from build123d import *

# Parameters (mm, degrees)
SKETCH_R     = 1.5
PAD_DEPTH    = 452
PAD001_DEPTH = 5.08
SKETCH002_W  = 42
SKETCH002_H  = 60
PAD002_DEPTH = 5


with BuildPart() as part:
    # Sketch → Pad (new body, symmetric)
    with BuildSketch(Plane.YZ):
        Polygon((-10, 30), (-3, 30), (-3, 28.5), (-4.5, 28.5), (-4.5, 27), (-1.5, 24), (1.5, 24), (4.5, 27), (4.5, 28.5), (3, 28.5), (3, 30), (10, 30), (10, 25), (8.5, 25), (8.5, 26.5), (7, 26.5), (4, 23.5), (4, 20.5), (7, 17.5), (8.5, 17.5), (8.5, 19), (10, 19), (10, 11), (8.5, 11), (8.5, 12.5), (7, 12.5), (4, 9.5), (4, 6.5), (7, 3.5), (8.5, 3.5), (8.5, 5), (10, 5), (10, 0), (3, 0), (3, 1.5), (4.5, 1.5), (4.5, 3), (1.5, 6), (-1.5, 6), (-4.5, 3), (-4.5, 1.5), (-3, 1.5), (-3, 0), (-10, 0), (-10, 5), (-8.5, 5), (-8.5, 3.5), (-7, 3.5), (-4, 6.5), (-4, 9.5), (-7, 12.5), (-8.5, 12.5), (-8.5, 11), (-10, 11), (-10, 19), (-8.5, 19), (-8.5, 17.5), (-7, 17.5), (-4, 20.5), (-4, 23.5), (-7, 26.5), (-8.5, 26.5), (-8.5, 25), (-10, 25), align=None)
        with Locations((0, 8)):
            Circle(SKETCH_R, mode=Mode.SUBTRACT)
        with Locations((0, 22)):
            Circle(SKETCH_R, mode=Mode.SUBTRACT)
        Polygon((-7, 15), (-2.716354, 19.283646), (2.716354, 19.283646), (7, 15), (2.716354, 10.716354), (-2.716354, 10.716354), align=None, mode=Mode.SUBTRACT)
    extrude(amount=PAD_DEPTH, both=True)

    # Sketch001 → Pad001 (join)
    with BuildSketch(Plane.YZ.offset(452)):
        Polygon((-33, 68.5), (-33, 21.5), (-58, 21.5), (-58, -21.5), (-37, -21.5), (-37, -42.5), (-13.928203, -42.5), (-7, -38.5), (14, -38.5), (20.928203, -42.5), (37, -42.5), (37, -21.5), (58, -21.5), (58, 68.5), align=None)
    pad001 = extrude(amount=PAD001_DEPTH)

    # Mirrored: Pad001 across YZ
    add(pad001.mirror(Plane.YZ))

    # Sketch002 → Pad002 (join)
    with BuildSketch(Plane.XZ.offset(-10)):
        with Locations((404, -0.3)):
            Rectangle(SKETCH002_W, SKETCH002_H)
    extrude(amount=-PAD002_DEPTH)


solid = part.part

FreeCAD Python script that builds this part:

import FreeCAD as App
import Part
import Sketcher
Q = App.Units.Quantity


def add_polygon(sketch, points):
    """Adds a closed chain of lines whose ends are joined by coincident constraints."""
    first, n = sketch.GeometryCount, len(points)
    for a, b in zip(points, points[1:] + points[:1]):
        sketch.addGeometry(Part.LineSegment(App.Vector(*a, 0), App.Vector(*b, 0)), False)
    for i in range(n):
        sketch.addConstraint(Sketcher.Constraint("Coincident", first + i, 2, first + (i + 1) % n, 1))

doc = App.newDocument("Part")
body = doc.addObject("PartDesign::Body", "Body")

# Sketch on YZ plane
sketch1 = body.newObject("Sketcher::SketchObject", "Sketch")
sketch1.AttachmentSupport = (doc.getObject("YZ_Plane"), [""])
sketch1.MapMode = "FlatFace"
add_polygon(sketch1, [(-3, 30), (-10, 30), (-10, 25), (-8.5, 25), (-8.5, 26.5), (-7, 26.5), (-4, 23.5), (-4, 20.5), (-7, 17.5), (-8.5, 17.5), (-8.5, 19), (-10, 19), (-10, 11), (-8.5, 11), (-8.5, 12.5), (-7, 12.5), (-4, 9.5), (-4, 6.5), (-7, 3.5), (-8.5, 3.5), (-8.5, 5), (-10, 5), (-10, 0), (-3, 0), (-3, 1.5), (-4.5, 1.5), (-4.5, 3), (-1.5, 6), (1.5, 6), (4.5, 3), (4.5, 1.5), (3, 1.5), (3, 0), (10, 0), (10, 5), (8.5, 5), (8.5, 3.5), (7, 3.5), (4, 6.5), (4, 9.5), (7, 12.5), (8.5, 12.5), (8.5, 11), (10, 11), (10, 19), (8.5, 19), (8.5, 17.5), (7, 17.5), (4, 20.5), (4, 23.5), (7, 26.5), (8.5, 26.5), (8.5, 25), (10, 25), (10, 30), (3, 30), (3, 28.5), (4.5, 28.5), (4.5, 27), (1.5, 24), (-1.5, 24), (-4.5, 27), (-4.5, 28.5), (-3, 28.5)])  # lines 0-63
sketch1.addGeometry(Part.Circle(App.Vector(0, 8, 0), App.Vector(0, 0, 1), 1.5), False)  # 64
add_polygon(sketch1, [(-7, 15), (-2.7, 19.3), (2.7, 19.3), (7, 15), (2.7, 10.7), (-2.7, 10.7)])  # lines 65-70
sketch1.addGeometry(Part.Circle(App.Vector(0, 22, 0), App.Vector(0, 0, 1), 1.5), False)  # 71
sketch1.addConstraint([
    Sketcher.Constraint("Horizontal", 0),
    Sketcher.Constraint("Vertical", 1),
    Sketcher.Constraint("Horizontal", 2),
    Sketcher.Constraint("Vertical", 3),
    Sketcher.Constraint("Horizontal", 4),
    Sketcher.Constraint("Vertical", 6),
    Sketcher.Constraint("Horizontal", 8),
    Sketcher.Constraint("Vertical", 9),
    Sketcher.Constraint("Horizontal", 10),
    Sketcher.Constraint("Vertical", 11),
    Sketcher.Constraint("Horizontal", 12),
    Sketcher.Constraint("Vertical", 13),
    Sketcher.Constraint("Horizontal", 14),
    Sketcher.Constraint("Vertical", 16),
    Sketcher.Constraint("Horizontal", 18),
    Sketcher.Constraint("Vertical", 19),
    Sketcher.Constraint("Horizontal", 20),
    Sketcher.Constraint("Vertical", 21),
    Sketcher.Constraint("Horizontal", 22),
    Sketcher.Constraint("Vertical", 23),
    Sketcher.Constraint("Horizontal", 24),
    Sketcher.Constraint("Vertical", 25),
    Sketcher.Constraint("Horizontal", 27),
    Sketcher.Constraint("Vertical", 29),
    Sketcher.Constraint("Horizontal", 30),
    Sketcher.Constraint("Vertical", 31),
    Sketcher.Constraint("Horizontal", 32),
    Sketcher.Constraint("Vertical", 33),
    Sketcher.Constraint("Horizontal", 34),
    Sketcher.Constraint("Vertical", 35),
    Sketcher.Constraint("Horizontal", 36),
    Sketcher.Constraint("Vertical", 38),
    Sketcher.Constraint("Horizontal", 40),
    Sketcher.Constraint("Vertical", 41),
    Sketcher.Constraint("Horizontal", 42),
    Sketcher.Constraint("Vertical", 43),
    Sketcher.Constraint("Horizontal", 44),
    Sketcher.Constraint("Vertical", 45),
    Sketcher.Constraint("Horizontal", 46),
    Sketcher.Constraint("Vertical", 48),
    Sketcher.Constraint("Horizontal", 50),
    Sketcher.Constraint("Vertical", 51),
    Sketcher.Constraint("Horizontal", 52),
    Sketcher.Constraint("Vertical", 53),
    Sketcher.Constraint("Horizontal", 54),
    Sketcher.Constraint("Vertical", 55),
    Sketcher.Constraint("Horizontal", 56),
    Sketcher.Constraint("Vertical", 57),
    Sketcher.Constraint("Horizontal", 59),
    Sketcher.Constraint("Vertical", 61),
    Sketcher.Constraint("Horizontal", 62),
    Sketcher.Constraint("Vertical", 63),
    Sketcher.Constraint("Horizontal", 66),
    Sketcher.Constraint("Horizontal", 69),
    Sketcher.Constraint("Equal", 64, 71),
    Sketcher.Constraint("Symmetric", 22, 2, 31, 2, -1, 1),
    Sketcher.Constraint("Symmetric", 25, 2, 28, 2, -2),
    Sketcher.Constraint("Symmetric", 21, 2, 32, 2, -2),
    Sketcher.Constraint("Symmetric", 19, 2, 34, 2, -2),
    Sketcher.Constraint("Symmetric", 17, 2, 36, 2, -2),
    Sketcher.Constraint("Symmetric", 16, 2, 37, 2, -2),
    Sketcher.Constraint("Symmetric", 14, 2, 39, 2, -2),
    Sketcher.Constraint("Symmetric", 12, 2, 41, 2, -2),
    Sketcher.Constraint("Symmetric", 10, 2, 43, 2, -2),
    Sketcher.Constraint("Symmetric", 8, 2, 45, 2, -2),
    Sketcher.Constraint("Symmetric", 6, 2, 47, 2, -2),
    Sketcher.Constraint("Symmetric", 4, 2, 49, 2, -2),
    Sketcher.Constraint("Symmetric", 2, 2, 51, 2, -2),
    Sketcher.Constraint("Symmetric", 0, 2, 53, 2, -2),
    Sketcher.Constraint("Symmetric", 57, 2, 60, 2, -2),
    Sketcher.Constraint("Symmetric", 55, 2, 62, 2, -2),
    Sketcher.Constraint("Symmetric", 67, 2, 70, 2, -2),
    Sketcher.Constraint("PointOnObject", 64, 3, -2),
    Sketcher.Constraint("PointOnObject", 71, 3, -2),
    Sketcher.Constraint("Perpendicular", 5, 7),
    Sketcher.Constraint("Perpendicular", 7, 15),
    Sketcher.Constraint("Perpendicular", 15, 17),
    Sketcher.Constraint("Parallel", 17, 26),
    Sketcher.Constraint("Perpendicular", 26, 28),
    Sketcher.Constraint("Parallel", 28, 37),
    Sketcher.Constraint("Perpendicular", 37, 39),
    Sketcher.Constraint("Perpendicular", 39, 47),
    Sketcher.Constraint("Perpendicular", 47, 49),
    Sketcher.Constraint("Parallel", 49, 58),
    Sketcher.Constraint("Perpendicular", 58, 60),
    Sketcher.Constraint("Perpendicular", 60, 65),
    Sketcher.Constraint("Perpendicular", 65, 67),
    Sketcher.Constraint("Perpendicular", 67, 68),
    Sketcher.Constraint("Perpendicular", 68, 70),
    Sketcher.Constraint("Horizontal", 24, 2, 29, 2),
    Sketcher.Constraint("Vertical", 4, 2, 7, 2),
    Sketcher.Constraint("Vertical", 3, 2, 8, 2),
    Sketcher.Constraint("Vertical", 1, 2, 10, 2),
    Sketcher.Constraint("Vertical", 9, 2, 12, 2),
    Sketcher.Constraint("Vertical", 7, 2, 14, 2),
    Sketcher.Constraint("Vertical", 6, 2, 15, 2),
    Sketcher.Constraint("Vertical", 14, 2, 17, 2),
    Sketcher.Constraint("Vertical", 13, 2, 18, 2),
    Sketcher.Constraint("Vertical", 11, 2, 20, 2),
    Sketcher.Constraint("Vertical", 31, 2, 54, 2),
    Sketcher.Constraint("Vertical", 29, 2, 56, 2),
    Sketcher.Constraint("Vertical", 27, 2, 58, 2),
    Sketcher.Constraint("Vertical", 49, 2, 67, 2),
    Sketcher.Constraint("Vertical", 66, 2, 68, 2),
    Sketcher.Constraint("Equal", 2, 4),
    Sketcher.Constraint("Equal", 20, 24),
    Sketcher.Constraint("Equal", 62, 3),
    Sketcher.Constraint("Equal", 59, 6),
    Sketcher.Constraint("Equal", 3, 9),
    Sketcher.Constraint("Equal", 9, 13),
    Sketcher.Constraint("Equal", 6, 16),
    Sketcher.Constraint("Equal", 13, 19),
    Sketcher.Constraint("Equal", 1, 21),
    Sketcher.Constraint("Equal", 19, 23),
    Sketcher.Constraint("Equal", 23, 25),
    Sketcher.Constraint("Equal", 51, 55),
    Sketcher.Constraint("Equal", 55, 57),
    Sketcher.Constraint("Equal", 17, 26),
    Sketcher.Constraint("Diameter", 64, 3.0),
    Sketcher.Constraint("DistanceX", 0, 2, 0, 1, 7.0),
    Sketcher.Constraint("DistanceX", 27, 1, 27, 2, 3.0),
    Sketcher.Constraint("DistanceY", 1, 2, 1, 1, 5.0),
    Sketcher.Constraint("DistanceY", 11, 2, 11, 1, 8.0),
    Sketcher.Constraint("DistanceX", 2, 1, 2, 2, 1.5),
    Sketcher.Constraint("DistanceY", -1, 1, 64, 3, 8.0),
    Sketcher.Constraint("DistanceY", -1, 1, 71, 3, 22.0),
    Sketcher.Constraint("DistanceX", 0, 2, -1, 1, 10.0),
    Sketcher.Constraint("DistanceY", -1, 1, 67, 2, 15.0),
    Sketcher.Constraint("Distance", 65, 6.05799),
])
pad1 = body.newObject("PartDesign::Pad", "Pad")
pad1.Profile = sketch1
pad1.Length = 904
pad1.Midplane = True

# Sketch on YZ plane
sketch2 = body.newObject("Sketcher::SketchObject", "Sketch001")
sketch2.AttachmentSupport = (doc.getObject("YZ_Plane"), [""])
sketch2.MapMode = "FlatFace"
sketch2.AttachmentOffset = App.Placement(App.Vector(0, 0, 452), App.Rotation())
add_polygon(sketch2, [(-33, 68), (-33, 22), (-58, 22), (-58, -22), (-37, -22), (-37, -42), (-14, -42), (-7, -38), (14, -38), (21, -42), (37, -42), (37, -22), (58, -22), (58, 68)])  # lines 0-13
sketch2.addConstraint([
    Sketcher.Constraint("Vertical", 0),
    Sketcher.Constraint("Horizontal", 1),
    Sketcher.Constraint("Vertical", 2),
    Sketcher.Constraint("Horizontal", 3),
    Sketcher.Constraint("Vertical", 4),
    Sketcher.Constraint("Horizontal", 5),
    Sketcher.Constraint("Horizontal", 7),
    Sketcher.Constraint("Horizontal", 9),
    Sketcher.Constraint("Vertical", 10),
    Sketcher.Constraint("Horizontal", 11),
    Sketcher.Constraint("Vertical", 12),
    Sketcher.Constraint("Horizontal", 13),
    Sketcher.Constraint("Symmetric", 1, 2, 11, 2, -1, 1),
    Sketcher.Constraint("Symmetric", 4, 2, 9, 2, -2),
    Sketcher.Constraint("Horizontal", 3, 2, 10, 2),
    Sketcher.Constraint("Equal", 3, 7),
    Sketcher.Constraint("Equal", 11, 4),
    Sketcher.Constraint("Equal", 6, 8),
    Sketcher.Constraint("DistanceX", 1, 2, 1, 1, 25.0),
    Sketcher.Constraint("DistanceX", 3, 1, 3, 2, 21.0),
    Sketcher.Constraint("DistanceX", 13, 2, 13, 1, 91.0),
    Sketcher.Constraint("DistanceY", 0, 2, 0, 1, 47.0),
    Sketcher.Constraint("DistanceY", 2, 2, 2, 1, 43.0),
    Sketcher.Constraint("Angle", 6, Q("30.000001 deg")),
    Sketcher.Constraint("Distance", 6, 8.0),
    Sketcher.Constraint("DistanceX", 6, 2, -1, 1, 7.0),
])
pad2 = body.newObject("PartDesign::Pad", "Pad001")
pad2.Profile = sketch2
pad2.Length = 5.08
doc.recompute()

mirrored = body.newObject("PartDesign::Mirrored", "Mirrored")
mirrored.Originals = [pad2]
mirrored.MirrorPlane = (doc.getObject("YZ_Plane"), [""])
body.Tip = mirrored

# Sketch on XZ plane
sketch3 = body.newObject("Sketcher::SketchObject", "Sketch002")
sketch3.AttachmentSupport = (doc.getObject("XZ_Plane"), [""])
sketch3.MapMode = "FlatFace"
sketch3.AttachmentOffset = App.Placement(App.Vector(0, 0, -10), App.Rotation())
add_polygon(sketch3, [(383, 30), (383, -30), (425, -30), (425, 30)])  # lines 0-3
sketch3.addConstraint([
    Sketcher.Constraint("Vertical", 0),
    Sketcher.Constraint("Horizontal", 1),
    Sketcher.Constraint("Vertical", 2),
    Sketcher.Constraint("Horizontal", 3),
    Sketcher.Constraint("DistanceX", 1, 1, 1, 2, 42.0),
    Sketcher.Constraint("DistanceY", 0, 2, 0, 1, 60.0),
    Sketcher.Constraint("DistanceX", -1, 1, 0, 2, 383.0),
    Sketcher.Constraint("DistanceY", 0, 2, -1, 1, 30.3),
])
pad3 = body.newObject("PartDesign::Pad", "Pad002")
pad3.Profile = sketch3
pad3.Length = 5
pad3.Reversed = True

doc.recompute()
